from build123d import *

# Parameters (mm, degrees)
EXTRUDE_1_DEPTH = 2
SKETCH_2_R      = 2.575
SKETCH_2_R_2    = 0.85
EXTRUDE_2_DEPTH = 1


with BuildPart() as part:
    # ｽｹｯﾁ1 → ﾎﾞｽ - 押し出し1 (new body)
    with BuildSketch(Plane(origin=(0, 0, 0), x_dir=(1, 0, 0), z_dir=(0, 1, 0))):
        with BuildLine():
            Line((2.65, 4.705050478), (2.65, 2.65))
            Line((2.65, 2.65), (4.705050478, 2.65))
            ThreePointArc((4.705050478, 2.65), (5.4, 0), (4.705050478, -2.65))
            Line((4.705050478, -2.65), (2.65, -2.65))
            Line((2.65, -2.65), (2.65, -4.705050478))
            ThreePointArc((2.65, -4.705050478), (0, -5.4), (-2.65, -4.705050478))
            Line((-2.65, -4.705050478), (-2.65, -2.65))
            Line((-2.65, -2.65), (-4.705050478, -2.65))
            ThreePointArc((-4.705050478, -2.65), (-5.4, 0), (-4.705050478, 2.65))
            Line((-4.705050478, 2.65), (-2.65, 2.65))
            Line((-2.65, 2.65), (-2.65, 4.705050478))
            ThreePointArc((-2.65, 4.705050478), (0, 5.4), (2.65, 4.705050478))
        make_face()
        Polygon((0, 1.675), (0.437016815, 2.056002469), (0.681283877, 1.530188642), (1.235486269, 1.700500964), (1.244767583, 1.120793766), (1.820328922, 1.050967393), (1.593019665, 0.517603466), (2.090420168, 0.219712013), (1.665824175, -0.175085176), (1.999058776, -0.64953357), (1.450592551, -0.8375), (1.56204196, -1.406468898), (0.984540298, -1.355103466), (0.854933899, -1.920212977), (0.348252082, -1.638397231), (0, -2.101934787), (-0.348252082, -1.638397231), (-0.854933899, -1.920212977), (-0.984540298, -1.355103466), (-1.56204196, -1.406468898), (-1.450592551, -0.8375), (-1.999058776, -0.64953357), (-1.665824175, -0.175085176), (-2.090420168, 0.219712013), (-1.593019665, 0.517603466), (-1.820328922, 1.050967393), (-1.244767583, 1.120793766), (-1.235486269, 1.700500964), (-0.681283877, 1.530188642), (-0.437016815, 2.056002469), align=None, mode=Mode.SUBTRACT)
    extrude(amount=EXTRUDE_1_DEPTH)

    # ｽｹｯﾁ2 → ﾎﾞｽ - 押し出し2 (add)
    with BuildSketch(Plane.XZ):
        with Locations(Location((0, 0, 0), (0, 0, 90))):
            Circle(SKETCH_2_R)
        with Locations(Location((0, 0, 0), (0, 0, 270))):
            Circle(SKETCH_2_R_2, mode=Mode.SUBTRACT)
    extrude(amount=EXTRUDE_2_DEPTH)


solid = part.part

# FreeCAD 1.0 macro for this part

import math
import FreeCAD as App
import Part
import Sketcher

V = App.Vector
Q = App.Units.Quantity


def add_polygon(sketch, points):
    """Adds a closed chain of lines whose ends are joined by coincident constraints."""
    first, n = sketch.GeometryCount, len(points)
    for a, b in zip(points, points[1:] + points[:1]):
        sketch.addGeometry(Part.LineSegment(App.Vector(*a, 0), App.Vector(*b, 0)), False)
    for i in range(n):
        sketch.addConstraint(Sketcher.Constraint("Coincident", first + i, 2, first + (i + 1) % n, 1))

doc = App.newDocument("Part")
body = doc.addObject("PartDesign::Body", "Body")

# Sketch on XZ plane
sketch1 = doc.addObject("Sketcher::SketchObject", "Sketch")
body.addObject(sketch1)
sketch1.AttachmentSupport = (doc.XZ_Plane, [""])
sketch1.MapMode = "FlatFace"
sketch1.addGeometry(Part.LineSegment(V(2.65, -2.65, 0), V(2.65, -4.70505, 0)), False)  # 0
sketch1.addGeometry(Part.ArcOfCircle(Part.Circle(V(0, 0, 0), V(0, 0, 1), 5.4), math.radians(-119.38928), math.radians(-60.61072)), False)  # 1
sketch1.addGeometry(Part.LineSegment(V(-2.65, -4.70505, 0), V(-2.65, -2.65, 0)), False)  # 2
sketch1.addGeometry(Part.LineSegment(V(-2.65, -2.65, 0), V(-4.70505, -2.65, 0)), False)  # 3
sketch1.addGeometry(Part.ArcOfCircle(Part.Circle(V(0, 0, 0), V(0, 0, 1), 5.4), math.radians(150.61072), math.radians(209.38928)), False)  # 4
sketch1.addGeometry(Part.LineSegment(V(-4.70505, 2.65, 0), V(-2.65, 2.65, 0)), False)  # 5
sketch1.addGeometry(Part.LineSegment(V(-2.65, 2.65, 0), V(-2.65, 4.70505, 0)), False)  # 6
sketch1.addGeometry(Part.ArcOfCircle(Part.Circle(V(0, 0, 0), V(0, 0, 1), 5.4), math.radians(60.61072), math.radians(119.38928)), False)  # 7
sketch1.addGeometry(Part.LineSegment(V(2.65, 4.70505, 0), V(2.65, 2.65, 0)), False)  # 8
sketch1.addGeometry(Part.LineSegment(V(2.65, 2.65, 0), V(4.70505, 2.65, 0)), False)  # 9
sketch1.addGeometry(Part.ArcOfCircle(Part.Circle(V(0, 0, 0), V(0, 0, 1), 5.4), math.radians(-29.38928), math.radians(29.38928)), False)  # 10
sketch1.addGeometry(Part.LineSegment(V(4.70505, -2.65, 0), V(2.65, -2.65, 0)), False)  # 11
add_polygon(sketch1, [(0, -1.675), (0.437017, -2.056002), (0.681284, -1.530189), (1.235486, -1.700501), (1.244768, -1.120794), (1.820329, -1.050967), (1.59302, -0.517603), (2.09042, -0.219712), (1.665824, 0.175085), (1.999059, 0.649534), (1.450593, 0.8375), (1.562042, 1.406469), (0.98454, 1.355103), (0.854934, 1.920213), (0.348252, 1.638397), (0, 2.101935), (-0.348252, 1.638397), (-0.854934, 1.920213), (-0.98454, 1.355103), (-1.562042, 1.406469), (-1.450593, 0.8375), (-1.999059, 0.649534), (-1.665824, 0.175085), (-2.09042, -0.219712), (-1.59302, -0.517603), (-1.820329, -1.050967), (-1.244768, -1.120794), (-1.235486, -1.700501), (-0.681284, -1.530189), (-0.437017, -2.056002)])  # lines 12-41
sketch1.addConstraint(Sketcher.Constraint("Coincident", 0, 2, 1, 2))
sketch1.addConstraint(Sketcher.Constraint("Coincident", 1, 1, 2, 1))
sketch1.addConstraint(Sketcher.Constraint("Coincident", 2, 2, 3, 1))
sketch1.addConstraint(Sketcher.Constraint("Coincident", 3, 2, 4, 2))
sketch1.addConstraint(Sketcher.Constraint("Coincident", 4, 1, 5, 1))
sketch1.addConstraint(Sketcher.Constraint("Coincident", 5, 2, 6, 1))
sketch1.addConstraint(Sketcher.Constraint("Coincident", 6, 2, 7, 2))
sketch1.addConstraint(Sketcher.Constraint("Coincident", 7, 1, 8, 1))
sketch1.addConstraint(Sketcher.Constraint("Coincident", 8, 2, 9, 1))
sketch1.addConstraint(Sketcher.Constraint("Coincident", 9, 2, 10, 2))
sketch1.addConstraint(Sketcher.Constraint("Coincident", 10, 1, 11, 1))
sketch1.addConstraint(Sketcher.Constraint("Coincident", 11, 2, 0, 1))
sketch1.addConstraint(Sketcher.Constraint("Vertical", 0))
sketch1.addConstraint(Sketcher.Constraint("Vertical", 2))
sketch1.addConstraint(Sketcher.Constraint("Horizontal", 3))
sketch1.addConstraint(Sketcher.Constraint("Horizontal", 5))
sketch1.addConstraint(Sketcher.Constraint("Vertical", 6))
sketch1.addConstraint(Sketcher.Constraint("Vertical", 8))
sketch1.addConstraint(Sketcher.Constraint("Horizontal", 9))
sketch1.addConstraint(Sketcher.Constraint("Horizontal", 11))
sketch1.addConstraint(Sketcher.Constraint("Coincident", 1, 3, -1, 1))
sketch1.addConstraint(Sketcher.Constraint("Coincident", 4, 3, -1, 1))
sketch1.addConstraint(Sketcher.Constraint("Coincident", 7, 3, -1, 1))
sketch1.addConstraint(Sketcher.Constraint("Coincident", 10, 3, -1, 1))
sketch1.addConstraint(Sketcher.Constraint("Equal", 1, 4))
sketch1.addConstraint(Sketcher.Constraint("Equal", 4, 7))
sketch1.addConstraint(Sketcher.Constraint("Equal", 7, 10))
sketch1.addConstraint(Sketcher.Constraint("Symmetric", 2, 2, 8, 2, -1, 1))
sketch1.addConstraint(Sketcher.Constraint("Symmetric", 5, 2, 11, 2, -1, 1))
sketch1.addConstraint(Sketcher.Constraint("Symmetric", 5, 2, 8, 2, -2))
sketch1.addConstraint(Sketcher.Constraint("Symmetric", 25, 2, 27, 2, -2))
sketch1.addConstraint(Sketcher.Constraint("Symmetric", 24, 2, 28, 2, -2))
sketch1.addConstraint(Sketcher.Constraint("Symmetric", 23, 2, 29, 2, -2))
sketch1.addConstraint(Sketcher.Constraint("Symmetric", 22, 2, 30, 2, -2))
sketch1.addConstraint(Sketcher.Constraint("Symmetric", 21, 2, 31, 2, -2))
sketch1.addConstraint(Sketcher.Constraint("Symmetric", 20, 2, 32, 2, -2))
sketch1.addConstraint(Sketcher.Constraint("Symmetric", 19, 2, 33, 2, -2))
sketch1.addConstraint(Sketcher.Constraint("Symmetric", 18, 2, 34, 2, -2))
sketch1.addConstraint(Sketcher.Constraint("Symmetric", 17, 2, 35, 2, -2))
sketch1.addConstraint(Sketcher.Constraint("Symmetric", 16, 2, 36, 2, -2))
sketch1.addConstraint(Sketcher.Constraint("Symmetric", 15, 2, 37, 2, -2))
sketch1.addConstraint(Sketcher.Constraint("Symmetric", 14, 2, 38, 2, -2))
sketch1.addConstraint(Sketcher.Constraint("Symmetric", 13, 2, 39, 2, -2))
sketch1.addConstraint(Sketcher.Constraint("Symmetric", 12, 2, 40, 2, -2))
sketch1.addConstraint(Sketcher.Constraint("PointOnObject", 26, 2, -2))
sketch1.addConstraint(Sketcher.Constraint("PointOnObject", 41, 2, -2))
sketch1.addConstraint(Sketcher.Constraint("Equal", 11, 0))
sketch1.addConstraint(Sketcher.Constraint("Equal", 12, 13))
sketch1.addConstraint(Sketcher.Constraint("Equal", 13, 14))
sketch1.addConstraint(Sketcher.Constraint("Equal", 14, 15))
sketch1.addConstraint(Sketcher.Constraint("Equal", 15, 16))
sketch1.addConstraint(Sketcher.Constraint("Equal", 16, 17))
sketch1.addConstraint(Sketcher.Constraint("Equal", 17, 18))
sketch1.addConstraint(Sketcher.Constraint("Equal", 18, 19))
sketch1.addConstraint(Sketcher.Constraint("Equal", 19, 20))
sketch1.addConstraint(Sketcher.Constraint("Equal", 20, 21))
sketch1.addConstraint(Sketcher.Constraint("Equal", 21, 22))
sketch1.addConstraint(Sketcher.Constraint("Equal", 22, 23))
sketch1.addConstraint(Sketcher.Constraint("Equal", 23, 24))
sketch1.addConstraint(Sketcher.Constraint("Equal", 24, 25))
sketch1.addConstraint(Sketcher.Constraint("Equal", 25, 26))
sketch1.addConstraint(Sketcher.Constraint("Radius", 1, Q("5.4 mm")))
sketch1.addConstraint(Sketcher.Constraint("DistanceX", 1, 1, 0, 2, Q("5.3 mm")))
sketch1.addConstraint(Sketcher.Constraint("DistanceY", 41, 2, -1, 1, Q("1.675 mm")))
sketch1.addConstraint(Sketcher.Constraint("DistanceY", 14, 2, -1, 1, Q("1.700501 mm")))
sketch1.addConstraint(Sketcher.Constraint("DistanceY", -1, 1, 21, 2, Q("0.8375 mm")))
sketch1.addConstraint(Sketcher.Constraint("DistanceY", 12, 2, 14, 2, Q("0.355502 mm")))
sketch1.addConstraint(Sketcher.Constraint("DistanceX", 17, 2, 18, 2, Q("0.497401 mm")))
sketch1.addConstraint(Sketcher.Constraint("DistanceY", 16, 2, 20, 2, Q("1.700501 mm")))
sketch1.addConstraint(Sketcher.Constraint("DistanceX", 23, 2, 22, 2, Q("0.577502 mm")))
sketch1.addConstraint(Sketcher.Constraint("DistanceX", 39, 2, 12, 2, Q("1.118301 mm")))
sketch1.addConstraint(Sketcher.Constraint("Distance", 12, Q("0.579781 mm")))
sketch1.addConstraint(Sketcher.Constraint("DistanceX", -1, 1, 16, 2, Q("1.820329 mm")))
sketch1.addConstraint(Sketcher.Constraint("DistanceX", -1, 1, 17, 2, Q("1.59302 mm")))
sketch1.addConstraint(Sketcher.Constraint("DistanceX", -1, 1, 20, 2, Q("1.999059 mm")))
sketch1.addConstraint(Sketcher.Constraint("DistanceX", -1, 1, 22, 2, Q("1.562042 mm")))
sketch1.addConstraint(Sketcher.Constraint("DistanceY", -1, 1, 22, 2, Q("1.406469 mm")))
sketch1.addConstraint(Sketcher.Constraint("DistanceY", 23, 2, 24, 2, Q("0.56511 mm")))
sketch1.addConstraint(Sketcher.Constraint("DistanceX", 25, 2, 24, 2, Q("0.506682 mm")))
pad1 = doc.addObject("PartDesign::Pad", "Pad")
body.addObject(pad1)
pad1.Profile = sketch1
pad1.Length = 2
pad1.Reversed = True

# Sketch on XZ plane
sketch2 = doc.addObject("Sketcher::SketchObject", "Sketch001")
body.addObject(sketch2)
sketch2.AttachmentSupport = (doc.XZ_Plane, [""])
sketch2.MapMode = "FlatFace"
sketch2.addGeometry(Part.Circle(V(0, 0, 0), V(0, 0, 1), 2.575), False)
sketch2.addGeometry(Part.Circle(V(0, 0, 0), V(0, 0, 1), 0.85), False)
sketch2.addConstraint(Sketcher.Constraint("Coincident", 0, 3, -1, 1))
sketch2.addConstraint(Sketcher.Constraint("Coincident", 1, 3, -1, 1))
sketch2.addConstraint(Sketcher.Constraint("Diameter", 1, Q("1.7 mm")))
sketch2.addConstraint(Sketcher.Constraint("Diameter", 0, Q("5.15 mm")))
pad2 = doc.addObject("PartDesign::Pad", "Pad001")
body.addObject(pad2)
pad2.Profile = sketch2
pad2.Length = 1

doc.recompute()
